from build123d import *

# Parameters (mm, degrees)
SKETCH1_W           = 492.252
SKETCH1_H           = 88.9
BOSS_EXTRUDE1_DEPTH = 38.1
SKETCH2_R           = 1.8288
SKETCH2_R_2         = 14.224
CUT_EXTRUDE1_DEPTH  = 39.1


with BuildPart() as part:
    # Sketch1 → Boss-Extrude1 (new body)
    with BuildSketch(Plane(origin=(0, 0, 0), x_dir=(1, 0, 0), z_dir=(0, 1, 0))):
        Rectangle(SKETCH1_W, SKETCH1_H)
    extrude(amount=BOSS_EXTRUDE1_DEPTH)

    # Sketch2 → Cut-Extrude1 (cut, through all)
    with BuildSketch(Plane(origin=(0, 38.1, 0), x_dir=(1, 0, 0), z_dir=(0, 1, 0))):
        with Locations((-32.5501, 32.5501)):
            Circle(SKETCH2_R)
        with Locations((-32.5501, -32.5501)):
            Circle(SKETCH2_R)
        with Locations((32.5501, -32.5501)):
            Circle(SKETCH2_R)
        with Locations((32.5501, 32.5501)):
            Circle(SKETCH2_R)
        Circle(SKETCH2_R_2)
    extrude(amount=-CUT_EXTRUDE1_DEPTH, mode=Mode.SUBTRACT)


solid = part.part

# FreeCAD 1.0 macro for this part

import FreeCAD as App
import Part
import Sketcher
Q = App.Units.Quantity

doc = App.newDocument("Part")
body = doc.addObject("PartDesign::Body", "Body")

sketch1 = body.newObject("Sketcher::SketchObject", "Sketch")
sketch1.AttachmentSupport = (doc.getObject("XZ_Plane"), [""])
sketch1.MapMode = "FlatFace"
sketch1.addGeometry([
    Part.LineSegment(App.Vector(-246, -44, 0), App.Vector(-246, 44, 0)),
    Part.LineSegment(App.Vector(-246, 44, 0), App.Vector(246, 44, 0)),
    Part.LineSegment(App.Vector(246, 44, 0), App.Vector(246, -44, 0)),
    Part.LineSegment(App.Vector(246, -44, 0), App.Vector(-246, -44, 0)),
], False)
sketch1.addConstraint([
    Sketcher.Constraint("Coincident", 0, 2, 1, 1),
    Sketcher.Constraint("Coincident", 1, 2, 2, 1),
    Sketcher.Constraint("Coincident", 2, 2, 3, 1),
    Sketcher.Constraint("Coincident", 3, 2, 0, 1),
    Sketcher.Constraint("Vertical", 0),
    Sketcher.Constraint("Horizontal", 1),
    Sketcher.Constraint("Vertical", 2),
    Sketcher.Constraint("Horizontal", 3),
    Sketcher.Constraint("Symmetric", 0, 2, 2, 2, -1, 1),
    Sketcher.Constraint("DistanceY", 0, 1, 0, 2, Q("3.5 in")),
    Sketcher.Constraint("DistanceX", 1, 1, 1, 2, Q("19.38 in")),
])
pad1 = body.newObject("PartDesign::Pad", "Pad")
pad1.Profile = sketch1
pad1.Length = Q("1.5 in")
pad1.Reversed = True

sketch2 = body.newObject("Sketcher::SketchObject", "Sketch001")
sketch2.AttachmentSupport = (doc.getObject("XZ_Plane"), [""])
sketch2.MapMode = "FlatFace"
sketch2.AttachmentOffset = App.Placement(App.Vector(0, 0, -1.5 * 25.4), App.Rotation())
sketch2.addGeometry([
    Part.Circle(App.Vector(-32.6, -32.6, 0), App.Vector(0, 0, 1), 1.8),
    Part.Circle(App.Vector(-32.6, 32.6, 0), App.Vector(0, 0, 1), 1.8),
    Part.Circle(App.Vector(32.6, 32.6, 0), App.Vector(0, 0, 1), 1.8),
    Part.Circle(App.Vector(32.6, -32.6, 0), App.Vector(0, 0, 1), 1.8),
    Part.Circle(App.Vector(0, 0, 0), App.Vector(0, 0, 1), 14.2),
], False)
sketch2.addConstraint([
    Sketcher.Constraint("Coincident", 4, 3, -1, 1),
    Sketcher.Constraint("Equal", 0, 1),
    Sketcher.Constraint("Equal", 1, 2),
    Sketcher.Constraint("Equal", 2, 3),
    Sketcher.Constraint("Symmetric", 0, 3, 2, 3, -1, 1),
    Sketcher.Constraint("Symmetric", 1, 3, 3, 3, -1, 1),
    Sketcher.Constraint("Symmetric", 1, 3, 2, 3, -2),
    Sketcher.Constraint("Diameter", 4, Q("1.12 in")),
    Sketcher.Constraint("Diameter", 0, Q("0.144 in")),
    Sketcher.Constraint("DistanceY", 0, 3, 1, 3, Q("2.563 in")),
    Sketcher.Constraint("DistanceX", 1, 3, 2, 3, Q("2.563 in")),
])
pocket1 = body.newObject("PartDesign::Pocket", "Pocket")
pocket1.Profile = sketch2
pocket1.Type = "ThroughAll"
pocket1.Reversed = True

doc.recompute()
